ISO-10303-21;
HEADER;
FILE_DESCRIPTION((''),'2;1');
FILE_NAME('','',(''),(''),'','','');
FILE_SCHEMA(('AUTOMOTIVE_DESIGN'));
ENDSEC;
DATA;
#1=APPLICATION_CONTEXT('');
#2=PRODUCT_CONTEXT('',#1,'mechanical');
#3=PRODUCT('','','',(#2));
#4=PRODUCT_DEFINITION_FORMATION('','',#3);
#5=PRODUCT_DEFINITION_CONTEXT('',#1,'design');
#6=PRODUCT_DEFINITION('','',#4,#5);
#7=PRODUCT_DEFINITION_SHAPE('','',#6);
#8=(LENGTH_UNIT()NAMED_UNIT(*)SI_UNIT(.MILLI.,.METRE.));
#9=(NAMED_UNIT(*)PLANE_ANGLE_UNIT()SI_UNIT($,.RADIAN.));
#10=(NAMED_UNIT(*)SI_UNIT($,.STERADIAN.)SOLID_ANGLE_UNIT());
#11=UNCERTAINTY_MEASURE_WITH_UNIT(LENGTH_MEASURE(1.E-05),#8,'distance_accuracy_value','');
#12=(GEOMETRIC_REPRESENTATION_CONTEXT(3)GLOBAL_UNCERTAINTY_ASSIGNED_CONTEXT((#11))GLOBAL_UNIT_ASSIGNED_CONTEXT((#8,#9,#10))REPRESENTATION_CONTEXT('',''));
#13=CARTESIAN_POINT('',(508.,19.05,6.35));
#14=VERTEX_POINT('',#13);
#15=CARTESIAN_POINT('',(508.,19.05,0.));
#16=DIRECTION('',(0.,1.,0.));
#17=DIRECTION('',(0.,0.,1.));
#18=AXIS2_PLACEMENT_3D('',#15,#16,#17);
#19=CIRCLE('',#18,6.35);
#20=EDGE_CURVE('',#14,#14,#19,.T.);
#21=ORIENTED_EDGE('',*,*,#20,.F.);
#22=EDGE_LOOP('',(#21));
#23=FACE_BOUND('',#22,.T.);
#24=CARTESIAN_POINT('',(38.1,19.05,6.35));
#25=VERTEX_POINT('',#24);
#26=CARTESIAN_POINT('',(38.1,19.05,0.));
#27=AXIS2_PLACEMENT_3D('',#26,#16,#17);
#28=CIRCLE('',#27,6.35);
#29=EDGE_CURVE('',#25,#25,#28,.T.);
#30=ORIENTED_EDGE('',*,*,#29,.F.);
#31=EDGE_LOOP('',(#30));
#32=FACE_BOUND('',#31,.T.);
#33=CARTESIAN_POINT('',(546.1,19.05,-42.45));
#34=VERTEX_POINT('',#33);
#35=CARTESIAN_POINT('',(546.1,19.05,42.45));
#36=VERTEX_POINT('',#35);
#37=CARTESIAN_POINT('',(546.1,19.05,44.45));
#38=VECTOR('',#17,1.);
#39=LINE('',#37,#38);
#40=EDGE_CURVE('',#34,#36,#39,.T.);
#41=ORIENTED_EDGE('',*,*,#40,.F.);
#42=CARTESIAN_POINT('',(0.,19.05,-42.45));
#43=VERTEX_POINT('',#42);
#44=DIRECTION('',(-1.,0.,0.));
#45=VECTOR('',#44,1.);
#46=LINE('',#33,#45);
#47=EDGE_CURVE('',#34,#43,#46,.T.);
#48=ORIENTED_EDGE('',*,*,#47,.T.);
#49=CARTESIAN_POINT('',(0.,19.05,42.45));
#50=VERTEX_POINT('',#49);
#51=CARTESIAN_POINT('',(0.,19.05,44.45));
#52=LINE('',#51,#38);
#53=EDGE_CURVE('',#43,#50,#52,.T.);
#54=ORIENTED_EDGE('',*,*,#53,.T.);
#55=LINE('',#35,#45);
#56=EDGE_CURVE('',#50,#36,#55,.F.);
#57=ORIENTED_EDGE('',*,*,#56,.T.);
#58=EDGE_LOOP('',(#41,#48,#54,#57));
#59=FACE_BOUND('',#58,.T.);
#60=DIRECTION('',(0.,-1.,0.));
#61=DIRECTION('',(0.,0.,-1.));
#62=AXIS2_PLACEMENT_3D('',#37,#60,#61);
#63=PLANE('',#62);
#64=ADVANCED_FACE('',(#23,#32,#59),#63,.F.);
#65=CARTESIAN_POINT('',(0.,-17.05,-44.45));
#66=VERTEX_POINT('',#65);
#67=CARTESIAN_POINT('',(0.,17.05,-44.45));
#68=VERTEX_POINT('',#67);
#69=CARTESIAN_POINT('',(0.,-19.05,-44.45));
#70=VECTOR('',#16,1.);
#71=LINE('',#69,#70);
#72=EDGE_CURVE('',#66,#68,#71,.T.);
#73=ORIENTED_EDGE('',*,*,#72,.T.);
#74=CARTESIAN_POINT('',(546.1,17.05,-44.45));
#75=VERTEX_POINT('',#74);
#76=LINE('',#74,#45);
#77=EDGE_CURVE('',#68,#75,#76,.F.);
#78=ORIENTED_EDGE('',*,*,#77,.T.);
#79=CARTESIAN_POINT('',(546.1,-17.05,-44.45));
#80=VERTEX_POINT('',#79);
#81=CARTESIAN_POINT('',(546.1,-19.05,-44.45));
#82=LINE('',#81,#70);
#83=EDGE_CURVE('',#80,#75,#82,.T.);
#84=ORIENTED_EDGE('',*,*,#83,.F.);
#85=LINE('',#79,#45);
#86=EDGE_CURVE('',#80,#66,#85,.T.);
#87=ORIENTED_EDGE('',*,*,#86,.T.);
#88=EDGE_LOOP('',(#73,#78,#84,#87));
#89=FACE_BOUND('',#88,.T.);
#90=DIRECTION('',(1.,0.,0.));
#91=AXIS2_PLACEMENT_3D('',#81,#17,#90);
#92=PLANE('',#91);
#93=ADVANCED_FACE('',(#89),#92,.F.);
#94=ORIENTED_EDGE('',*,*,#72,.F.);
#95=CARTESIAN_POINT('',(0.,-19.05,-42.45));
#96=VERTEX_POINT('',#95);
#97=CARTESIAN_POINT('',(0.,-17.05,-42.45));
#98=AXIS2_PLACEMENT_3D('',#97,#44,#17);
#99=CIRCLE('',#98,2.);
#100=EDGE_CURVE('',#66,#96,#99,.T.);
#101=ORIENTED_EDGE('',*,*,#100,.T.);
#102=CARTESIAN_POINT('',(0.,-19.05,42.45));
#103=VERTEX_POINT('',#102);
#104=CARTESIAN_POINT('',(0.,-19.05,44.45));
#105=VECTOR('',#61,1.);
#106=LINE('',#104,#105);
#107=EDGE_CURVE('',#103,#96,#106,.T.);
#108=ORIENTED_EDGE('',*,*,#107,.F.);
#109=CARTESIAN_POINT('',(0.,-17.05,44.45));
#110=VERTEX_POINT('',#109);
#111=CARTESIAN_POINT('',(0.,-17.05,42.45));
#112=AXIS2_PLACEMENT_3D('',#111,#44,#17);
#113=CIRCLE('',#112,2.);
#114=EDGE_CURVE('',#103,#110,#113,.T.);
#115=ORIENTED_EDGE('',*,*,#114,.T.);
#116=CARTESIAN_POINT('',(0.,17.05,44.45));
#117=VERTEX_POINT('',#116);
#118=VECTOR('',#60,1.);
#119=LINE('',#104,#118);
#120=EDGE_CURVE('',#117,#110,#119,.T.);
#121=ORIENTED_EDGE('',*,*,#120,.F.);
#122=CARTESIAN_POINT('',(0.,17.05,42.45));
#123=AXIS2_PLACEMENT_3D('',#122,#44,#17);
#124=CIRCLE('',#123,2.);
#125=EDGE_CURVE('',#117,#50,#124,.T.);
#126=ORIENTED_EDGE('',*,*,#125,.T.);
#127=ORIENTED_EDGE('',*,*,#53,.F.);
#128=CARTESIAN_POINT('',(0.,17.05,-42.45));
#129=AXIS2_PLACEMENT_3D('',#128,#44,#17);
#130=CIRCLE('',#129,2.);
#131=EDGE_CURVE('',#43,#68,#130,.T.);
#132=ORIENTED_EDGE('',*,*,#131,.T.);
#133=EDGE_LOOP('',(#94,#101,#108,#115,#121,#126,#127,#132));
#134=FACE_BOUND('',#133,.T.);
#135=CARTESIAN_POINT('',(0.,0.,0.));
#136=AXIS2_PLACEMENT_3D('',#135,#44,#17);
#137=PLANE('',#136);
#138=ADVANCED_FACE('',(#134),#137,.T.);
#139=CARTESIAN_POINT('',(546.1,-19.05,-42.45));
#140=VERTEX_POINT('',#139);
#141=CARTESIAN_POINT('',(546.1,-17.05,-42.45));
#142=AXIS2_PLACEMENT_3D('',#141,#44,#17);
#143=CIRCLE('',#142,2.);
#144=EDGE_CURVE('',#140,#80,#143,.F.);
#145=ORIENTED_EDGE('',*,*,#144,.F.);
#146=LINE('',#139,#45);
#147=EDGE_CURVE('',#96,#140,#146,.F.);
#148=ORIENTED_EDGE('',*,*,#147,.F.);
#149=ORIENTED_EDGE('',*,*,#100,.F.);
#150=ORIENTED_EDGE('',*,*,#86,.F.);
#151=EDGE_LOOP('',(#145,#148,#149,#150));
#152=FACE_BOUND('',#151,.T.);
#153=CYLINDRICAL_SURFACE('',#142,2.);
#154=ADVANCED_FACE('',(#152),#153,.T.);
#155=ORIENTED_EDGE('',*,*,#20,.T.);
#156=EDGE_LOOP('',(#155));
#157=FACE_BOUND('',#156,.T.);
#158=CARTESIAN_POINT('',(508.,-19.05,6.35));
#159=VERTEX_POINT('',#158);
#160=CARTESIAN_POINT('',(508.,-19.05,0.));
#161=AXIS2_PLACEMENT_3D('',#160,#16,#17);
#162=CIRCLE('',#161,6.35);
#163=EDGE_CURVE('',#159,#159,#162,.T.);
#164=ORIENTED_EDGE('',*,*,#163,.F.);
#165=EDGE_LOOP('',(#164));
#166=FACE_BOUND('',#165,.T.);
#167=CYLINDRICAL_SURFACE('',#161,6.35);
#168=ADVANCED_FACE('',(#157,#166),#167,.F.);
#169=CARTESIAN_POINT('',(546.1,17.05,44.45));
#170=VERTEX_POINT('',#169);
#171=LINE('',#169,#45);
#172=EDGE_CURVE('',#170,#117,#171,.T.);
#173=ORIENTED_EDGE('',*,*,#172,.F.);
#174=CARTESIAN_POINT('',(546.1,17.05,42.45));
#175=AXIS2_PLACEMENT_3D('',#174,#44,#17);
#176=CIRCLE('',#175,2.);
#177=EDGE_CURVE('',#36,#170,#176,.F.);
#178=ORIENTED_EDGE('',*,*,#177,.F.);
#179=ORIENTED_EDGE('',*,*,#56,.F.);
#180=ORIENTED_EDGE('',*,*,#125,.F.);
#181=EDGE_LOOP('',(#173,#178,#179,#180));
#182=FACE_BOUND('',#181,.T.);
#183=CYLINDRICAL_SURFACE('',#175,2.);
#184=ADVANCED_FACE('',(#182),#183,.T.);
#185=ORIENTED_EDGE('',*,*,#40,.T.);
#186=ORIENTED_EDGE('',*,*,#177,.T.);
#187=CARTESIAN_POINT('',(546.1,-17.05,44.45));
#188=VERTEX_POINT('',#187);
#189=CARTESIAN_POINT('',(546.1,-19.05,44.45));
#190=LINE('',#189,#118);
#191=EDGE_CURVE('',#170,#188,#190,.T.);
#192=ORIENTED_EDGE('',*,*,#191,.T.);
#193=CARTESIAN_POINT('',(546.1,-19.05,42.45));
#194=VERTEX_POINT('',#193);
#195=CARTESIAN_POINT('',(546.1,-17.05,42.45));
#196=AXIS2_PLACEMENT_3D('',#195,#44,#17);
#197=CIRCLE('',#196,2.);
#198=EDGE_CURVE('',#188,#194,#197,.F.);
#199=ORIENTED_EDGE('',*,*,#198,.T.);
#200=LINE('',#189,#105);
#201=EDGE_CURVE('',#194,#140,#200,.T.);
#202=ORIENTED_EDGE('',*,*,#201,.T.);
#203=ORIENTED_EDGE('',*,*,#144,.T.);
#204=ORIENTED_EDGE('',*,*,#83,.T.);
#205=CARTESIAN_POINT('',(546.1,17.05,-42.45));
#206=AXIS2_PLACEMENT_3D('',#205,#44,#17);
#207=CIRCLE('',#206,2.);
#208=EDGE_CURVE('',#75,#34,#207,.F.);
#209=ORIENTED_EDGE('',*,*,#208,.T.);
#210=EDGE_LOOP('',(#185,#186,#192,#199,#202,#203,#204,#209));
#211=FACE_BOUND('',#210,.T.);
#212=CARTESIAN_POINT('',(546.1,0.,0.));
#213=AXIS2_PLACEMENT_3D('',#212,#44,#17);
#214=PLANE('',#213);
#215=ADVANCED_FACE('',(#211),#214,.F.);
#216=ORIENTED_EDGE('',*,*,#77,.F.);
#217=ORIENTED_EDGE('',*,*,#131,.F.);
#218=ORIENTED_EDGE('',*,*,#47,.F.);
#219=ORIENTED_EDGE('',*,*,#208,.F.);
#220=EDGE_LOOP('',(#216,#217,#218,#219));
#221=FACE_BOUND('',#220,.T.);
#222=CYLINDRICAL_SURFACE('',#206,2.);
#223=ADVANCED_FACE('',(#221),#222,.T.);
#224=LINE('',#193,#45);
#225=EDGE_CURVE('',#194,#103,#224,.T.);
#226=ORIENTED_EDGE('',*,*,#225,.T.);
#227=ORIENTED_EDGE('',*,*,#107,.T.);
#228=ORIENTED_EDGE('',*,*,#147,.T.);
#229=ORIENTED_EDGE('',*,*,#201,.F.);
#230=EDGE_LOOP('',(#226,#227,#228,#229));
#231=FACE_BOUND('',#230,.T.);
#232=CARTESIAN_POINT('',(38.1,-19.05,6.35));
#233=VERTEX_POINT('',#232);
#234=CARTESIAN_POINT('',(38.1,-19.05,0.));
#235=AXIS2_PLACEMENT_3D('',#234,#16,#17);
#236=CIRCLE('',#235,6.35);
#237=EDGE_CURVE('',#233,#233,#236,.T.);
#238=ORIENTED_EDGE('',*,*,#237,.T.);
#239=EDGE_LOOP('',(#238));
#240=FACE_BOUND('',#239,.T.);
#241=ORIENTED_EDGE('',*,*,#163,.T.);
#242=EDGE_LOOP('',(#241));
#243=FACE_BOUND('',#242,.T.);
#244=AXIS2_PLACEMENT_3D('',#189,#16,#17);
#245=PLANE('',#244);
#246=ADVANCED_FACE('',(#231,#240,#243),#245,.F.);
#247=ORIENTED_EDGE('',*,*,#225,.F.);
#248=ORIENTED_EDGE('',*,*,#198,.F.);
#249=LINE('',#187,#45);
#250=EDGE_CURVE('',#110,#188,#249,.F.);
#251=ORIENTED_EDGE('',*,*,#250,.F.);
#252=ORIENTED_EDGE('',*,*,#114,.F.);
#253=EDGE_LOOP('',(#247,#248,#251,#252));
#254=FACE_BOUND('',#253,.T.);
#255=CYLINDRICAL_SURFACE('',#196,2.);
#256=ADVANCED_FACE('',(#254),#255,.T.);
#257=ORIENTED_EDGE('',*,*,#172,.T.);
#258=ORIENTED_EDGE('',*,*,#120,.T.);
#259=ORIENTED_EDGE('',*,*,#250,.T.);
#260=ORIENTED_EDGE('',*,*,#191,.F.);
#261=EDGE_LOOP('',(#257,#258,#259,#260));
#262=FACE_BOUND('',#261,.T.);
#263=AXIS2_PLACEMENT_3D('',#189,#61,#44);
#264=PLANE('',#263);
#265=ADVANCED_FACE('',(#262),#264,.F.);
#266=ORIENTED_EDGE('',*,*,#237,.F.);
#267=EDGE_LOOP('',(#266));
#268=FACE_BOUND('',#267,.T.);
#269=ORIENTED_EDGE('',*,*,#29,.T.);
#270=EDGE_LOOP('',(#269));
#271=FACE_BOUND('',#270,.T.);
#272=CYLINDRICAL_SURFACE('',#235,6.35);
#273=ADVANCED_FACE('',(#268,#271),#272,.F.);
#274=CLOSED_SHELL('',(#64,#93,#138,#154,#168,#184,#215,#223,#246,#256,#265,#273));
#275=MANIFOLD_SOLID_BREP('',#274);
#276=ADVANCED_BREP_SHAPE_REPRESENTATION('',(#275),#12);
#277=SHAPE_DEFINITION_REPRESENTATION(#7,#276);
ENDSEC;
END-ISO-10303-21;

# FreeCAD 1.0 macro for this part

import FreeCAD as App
import Part
import Sketcher
from FreeCAD import Vector
Q = App.Units.Quantity


def edges_at(feature, points):
    """Names of the edges that pass closest to the given points."""
    edges = feature.Shape.Edges
    near = lambda p: min(range(len(edges)), key=lambda i: edges[i].distToShape(Part.Vertex(*p))[0])
    return sorted({f"Edge{near(p) + 1}" for p in points})


def add_polygon(sketch, points):
    """Adds a closed chain of lines whose ends are joined by coincident constraints."""
    first, n = sketch.GeometryCount, len(points)
    for a, b in zip(points, points[1:] + points[:1]):
        sketch.addGeometry(Part.LineSegment(App.Vector(*a, 0), App.Vector(*b, 0)), False)
    for i in range(n):
        sketch.addConstraint(Sketcher.Constraint("Coincident", first + i, 2, first + (i + 1) % n, 1))

doc = App.newDocument("Part")
body = doc.addObject("PartDesign::Body", "Body")

# Sketch on YZ plane
sketch1 = doc.addObject("Sketcher::SketchObject", "Sketch")
body.addObject(sketch1)
sketch1.AttachmentSupport = (doc.YZ_Plane, [""])
sketch1.MapMode = "FlatFace"
add_polygon(sketch1, [(19, 44), (-19, 44), (-19, -44), (19, -44)])  # lines 0-3
sketch1.addConstraint(Sketcher.Constraint("Horizontal", 0))
sketch1.addConstraint(Sketcher.Constraint("Vertical", 1))
sketch1.addConstraint(Sketcher.Constraint("Horizontal", 2))
sketch1.addConstraint(Sketcher.Constraint("Vertical", 3))
sketch1.addConstraint(Sketcher.Constraint("Symmetric", 0, 2, 2, 2, -1, 1))
sketch1.addConstraint(Sketcher.Constraint("DistanceX", 0, 2, 0, 1, Q("1.5 in")))
sketch1.addConstraint(Sketcher.Constraint("DistanceY", 1, 2, 1, 1, Q("3.5 in")))
pad1 = doc.addObject("PartDesign::Pad", "Pad")
body.addObject(pad1)
pad1.Profile = sketch1
pad1.Length = Q("21.5 in")
doc.recompute()

fillet = doc.addObject("PartDesign::Fillet", "Fillet")
body.addObject(fillet)
fillet.Base = (pad1, edges_at(pad1, [
    (273.05, -19.05, -44.45),
    (273.05, -19.05, 44.45),
    (273.05, 19.05, 44.45),
    (273.05, 19.05, -44.45),
]))
fillet.Radius = 2

# Sketch on XZ plane
sketch2 = doc.addObject("Sketcher::SketchObject", "Sketch001")
body.addObject(sketch2)
sketch2.AttachmentSupport = (doc.XZ_Plane, [""])
sketch2.MapMode = "FlatFace"
sketch2.AttachmentOffset = App.Placement(Vector(0, 0, -0.75 * 25.4), App.Rotation())
sketch2.addGeometry(Part.Circle(Vector(38, 0, 0), Vector(0, 0, 1), 6), False)
sketch2.addGeometry(Part.Circle(Vector(508, 0, 0), Vector(0, 0, 1), 6), False)
sketch2.addConstraint(Sketcher.Constraint("Equal", 0, 1))
sketch2.addConstraint(Sketcher.Constraint("PointOnObject", 0, 3, -1))
sketch2.addConstraint(Sketcher.Constraint("PointOnObject", 1, 3, -1))
sketch2.addConstraint(Sketcher.Constraint("Diameter", 0, Q("0.5 in")))
sketch2.addConstraint(Sketcher.Constraint("DistanceX", -1, 1, 1, 3, Q("20 in")))
sketch2.addConstraint(Sketcher.Constraint("DistanceX", -1, 1, 0, 3, Q("1.5 in")))
pocket1 = doc.addObject("PartDesign::Pocket", "Pocket")
body.addObject(pocket1)
pocket1.Profile = sketch2
pocket1.Type = "ThroughAll"
pocket1.Reversed = True

doc.recompute()
